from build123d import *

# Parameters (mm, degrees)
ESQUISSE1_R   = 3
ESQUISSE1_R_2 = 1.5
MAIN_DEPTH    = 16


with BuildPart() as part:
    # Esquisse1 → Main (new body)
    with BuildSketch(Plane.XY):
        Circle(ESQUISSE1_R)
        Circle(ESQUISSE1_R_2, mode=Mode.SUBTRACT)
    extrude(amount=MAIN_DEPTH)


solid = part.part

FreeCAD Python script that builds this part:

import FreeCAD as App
import Part
import Sketcher

V = App.Vector
Q = App.Units.Quantity

doc = App.newDocument("Part")
body = doc.addObject("PartDesign::Body", "Body")

sketch1 = body.newObject("Sketcher::SketchObject", "Sketch")
sketch1.AttachmentSupport = (doc.getObject("XY_Plane"), [""])
sketch1.MapMode = "FlatFace"
sketch1.addGeometry([
    Part.Circle(V(0, 0, 0), V(0, 0, 1), 3),
    Part.Circle(V(0, 0, 0), V(0, 0, 1), 1.5),
], False)
sketch1.addConstraint([
    Sketcher.Constraint("Coincident", 0, 3, -1, 1),
    Sketcher.Constraint("Coincident", 1, 3, -1, 1),
    Sketcher.Constraint("Diameter", 0, Q("6 mm")),
    Sketcher.Constraint("Diameter", 1, Q("3 mm")),
])
pad1 = body.newObject("PartDesign::Pad", "Pad")
pad1.Profile = sketch1
pad1.Length = 16

doc.recompute()
